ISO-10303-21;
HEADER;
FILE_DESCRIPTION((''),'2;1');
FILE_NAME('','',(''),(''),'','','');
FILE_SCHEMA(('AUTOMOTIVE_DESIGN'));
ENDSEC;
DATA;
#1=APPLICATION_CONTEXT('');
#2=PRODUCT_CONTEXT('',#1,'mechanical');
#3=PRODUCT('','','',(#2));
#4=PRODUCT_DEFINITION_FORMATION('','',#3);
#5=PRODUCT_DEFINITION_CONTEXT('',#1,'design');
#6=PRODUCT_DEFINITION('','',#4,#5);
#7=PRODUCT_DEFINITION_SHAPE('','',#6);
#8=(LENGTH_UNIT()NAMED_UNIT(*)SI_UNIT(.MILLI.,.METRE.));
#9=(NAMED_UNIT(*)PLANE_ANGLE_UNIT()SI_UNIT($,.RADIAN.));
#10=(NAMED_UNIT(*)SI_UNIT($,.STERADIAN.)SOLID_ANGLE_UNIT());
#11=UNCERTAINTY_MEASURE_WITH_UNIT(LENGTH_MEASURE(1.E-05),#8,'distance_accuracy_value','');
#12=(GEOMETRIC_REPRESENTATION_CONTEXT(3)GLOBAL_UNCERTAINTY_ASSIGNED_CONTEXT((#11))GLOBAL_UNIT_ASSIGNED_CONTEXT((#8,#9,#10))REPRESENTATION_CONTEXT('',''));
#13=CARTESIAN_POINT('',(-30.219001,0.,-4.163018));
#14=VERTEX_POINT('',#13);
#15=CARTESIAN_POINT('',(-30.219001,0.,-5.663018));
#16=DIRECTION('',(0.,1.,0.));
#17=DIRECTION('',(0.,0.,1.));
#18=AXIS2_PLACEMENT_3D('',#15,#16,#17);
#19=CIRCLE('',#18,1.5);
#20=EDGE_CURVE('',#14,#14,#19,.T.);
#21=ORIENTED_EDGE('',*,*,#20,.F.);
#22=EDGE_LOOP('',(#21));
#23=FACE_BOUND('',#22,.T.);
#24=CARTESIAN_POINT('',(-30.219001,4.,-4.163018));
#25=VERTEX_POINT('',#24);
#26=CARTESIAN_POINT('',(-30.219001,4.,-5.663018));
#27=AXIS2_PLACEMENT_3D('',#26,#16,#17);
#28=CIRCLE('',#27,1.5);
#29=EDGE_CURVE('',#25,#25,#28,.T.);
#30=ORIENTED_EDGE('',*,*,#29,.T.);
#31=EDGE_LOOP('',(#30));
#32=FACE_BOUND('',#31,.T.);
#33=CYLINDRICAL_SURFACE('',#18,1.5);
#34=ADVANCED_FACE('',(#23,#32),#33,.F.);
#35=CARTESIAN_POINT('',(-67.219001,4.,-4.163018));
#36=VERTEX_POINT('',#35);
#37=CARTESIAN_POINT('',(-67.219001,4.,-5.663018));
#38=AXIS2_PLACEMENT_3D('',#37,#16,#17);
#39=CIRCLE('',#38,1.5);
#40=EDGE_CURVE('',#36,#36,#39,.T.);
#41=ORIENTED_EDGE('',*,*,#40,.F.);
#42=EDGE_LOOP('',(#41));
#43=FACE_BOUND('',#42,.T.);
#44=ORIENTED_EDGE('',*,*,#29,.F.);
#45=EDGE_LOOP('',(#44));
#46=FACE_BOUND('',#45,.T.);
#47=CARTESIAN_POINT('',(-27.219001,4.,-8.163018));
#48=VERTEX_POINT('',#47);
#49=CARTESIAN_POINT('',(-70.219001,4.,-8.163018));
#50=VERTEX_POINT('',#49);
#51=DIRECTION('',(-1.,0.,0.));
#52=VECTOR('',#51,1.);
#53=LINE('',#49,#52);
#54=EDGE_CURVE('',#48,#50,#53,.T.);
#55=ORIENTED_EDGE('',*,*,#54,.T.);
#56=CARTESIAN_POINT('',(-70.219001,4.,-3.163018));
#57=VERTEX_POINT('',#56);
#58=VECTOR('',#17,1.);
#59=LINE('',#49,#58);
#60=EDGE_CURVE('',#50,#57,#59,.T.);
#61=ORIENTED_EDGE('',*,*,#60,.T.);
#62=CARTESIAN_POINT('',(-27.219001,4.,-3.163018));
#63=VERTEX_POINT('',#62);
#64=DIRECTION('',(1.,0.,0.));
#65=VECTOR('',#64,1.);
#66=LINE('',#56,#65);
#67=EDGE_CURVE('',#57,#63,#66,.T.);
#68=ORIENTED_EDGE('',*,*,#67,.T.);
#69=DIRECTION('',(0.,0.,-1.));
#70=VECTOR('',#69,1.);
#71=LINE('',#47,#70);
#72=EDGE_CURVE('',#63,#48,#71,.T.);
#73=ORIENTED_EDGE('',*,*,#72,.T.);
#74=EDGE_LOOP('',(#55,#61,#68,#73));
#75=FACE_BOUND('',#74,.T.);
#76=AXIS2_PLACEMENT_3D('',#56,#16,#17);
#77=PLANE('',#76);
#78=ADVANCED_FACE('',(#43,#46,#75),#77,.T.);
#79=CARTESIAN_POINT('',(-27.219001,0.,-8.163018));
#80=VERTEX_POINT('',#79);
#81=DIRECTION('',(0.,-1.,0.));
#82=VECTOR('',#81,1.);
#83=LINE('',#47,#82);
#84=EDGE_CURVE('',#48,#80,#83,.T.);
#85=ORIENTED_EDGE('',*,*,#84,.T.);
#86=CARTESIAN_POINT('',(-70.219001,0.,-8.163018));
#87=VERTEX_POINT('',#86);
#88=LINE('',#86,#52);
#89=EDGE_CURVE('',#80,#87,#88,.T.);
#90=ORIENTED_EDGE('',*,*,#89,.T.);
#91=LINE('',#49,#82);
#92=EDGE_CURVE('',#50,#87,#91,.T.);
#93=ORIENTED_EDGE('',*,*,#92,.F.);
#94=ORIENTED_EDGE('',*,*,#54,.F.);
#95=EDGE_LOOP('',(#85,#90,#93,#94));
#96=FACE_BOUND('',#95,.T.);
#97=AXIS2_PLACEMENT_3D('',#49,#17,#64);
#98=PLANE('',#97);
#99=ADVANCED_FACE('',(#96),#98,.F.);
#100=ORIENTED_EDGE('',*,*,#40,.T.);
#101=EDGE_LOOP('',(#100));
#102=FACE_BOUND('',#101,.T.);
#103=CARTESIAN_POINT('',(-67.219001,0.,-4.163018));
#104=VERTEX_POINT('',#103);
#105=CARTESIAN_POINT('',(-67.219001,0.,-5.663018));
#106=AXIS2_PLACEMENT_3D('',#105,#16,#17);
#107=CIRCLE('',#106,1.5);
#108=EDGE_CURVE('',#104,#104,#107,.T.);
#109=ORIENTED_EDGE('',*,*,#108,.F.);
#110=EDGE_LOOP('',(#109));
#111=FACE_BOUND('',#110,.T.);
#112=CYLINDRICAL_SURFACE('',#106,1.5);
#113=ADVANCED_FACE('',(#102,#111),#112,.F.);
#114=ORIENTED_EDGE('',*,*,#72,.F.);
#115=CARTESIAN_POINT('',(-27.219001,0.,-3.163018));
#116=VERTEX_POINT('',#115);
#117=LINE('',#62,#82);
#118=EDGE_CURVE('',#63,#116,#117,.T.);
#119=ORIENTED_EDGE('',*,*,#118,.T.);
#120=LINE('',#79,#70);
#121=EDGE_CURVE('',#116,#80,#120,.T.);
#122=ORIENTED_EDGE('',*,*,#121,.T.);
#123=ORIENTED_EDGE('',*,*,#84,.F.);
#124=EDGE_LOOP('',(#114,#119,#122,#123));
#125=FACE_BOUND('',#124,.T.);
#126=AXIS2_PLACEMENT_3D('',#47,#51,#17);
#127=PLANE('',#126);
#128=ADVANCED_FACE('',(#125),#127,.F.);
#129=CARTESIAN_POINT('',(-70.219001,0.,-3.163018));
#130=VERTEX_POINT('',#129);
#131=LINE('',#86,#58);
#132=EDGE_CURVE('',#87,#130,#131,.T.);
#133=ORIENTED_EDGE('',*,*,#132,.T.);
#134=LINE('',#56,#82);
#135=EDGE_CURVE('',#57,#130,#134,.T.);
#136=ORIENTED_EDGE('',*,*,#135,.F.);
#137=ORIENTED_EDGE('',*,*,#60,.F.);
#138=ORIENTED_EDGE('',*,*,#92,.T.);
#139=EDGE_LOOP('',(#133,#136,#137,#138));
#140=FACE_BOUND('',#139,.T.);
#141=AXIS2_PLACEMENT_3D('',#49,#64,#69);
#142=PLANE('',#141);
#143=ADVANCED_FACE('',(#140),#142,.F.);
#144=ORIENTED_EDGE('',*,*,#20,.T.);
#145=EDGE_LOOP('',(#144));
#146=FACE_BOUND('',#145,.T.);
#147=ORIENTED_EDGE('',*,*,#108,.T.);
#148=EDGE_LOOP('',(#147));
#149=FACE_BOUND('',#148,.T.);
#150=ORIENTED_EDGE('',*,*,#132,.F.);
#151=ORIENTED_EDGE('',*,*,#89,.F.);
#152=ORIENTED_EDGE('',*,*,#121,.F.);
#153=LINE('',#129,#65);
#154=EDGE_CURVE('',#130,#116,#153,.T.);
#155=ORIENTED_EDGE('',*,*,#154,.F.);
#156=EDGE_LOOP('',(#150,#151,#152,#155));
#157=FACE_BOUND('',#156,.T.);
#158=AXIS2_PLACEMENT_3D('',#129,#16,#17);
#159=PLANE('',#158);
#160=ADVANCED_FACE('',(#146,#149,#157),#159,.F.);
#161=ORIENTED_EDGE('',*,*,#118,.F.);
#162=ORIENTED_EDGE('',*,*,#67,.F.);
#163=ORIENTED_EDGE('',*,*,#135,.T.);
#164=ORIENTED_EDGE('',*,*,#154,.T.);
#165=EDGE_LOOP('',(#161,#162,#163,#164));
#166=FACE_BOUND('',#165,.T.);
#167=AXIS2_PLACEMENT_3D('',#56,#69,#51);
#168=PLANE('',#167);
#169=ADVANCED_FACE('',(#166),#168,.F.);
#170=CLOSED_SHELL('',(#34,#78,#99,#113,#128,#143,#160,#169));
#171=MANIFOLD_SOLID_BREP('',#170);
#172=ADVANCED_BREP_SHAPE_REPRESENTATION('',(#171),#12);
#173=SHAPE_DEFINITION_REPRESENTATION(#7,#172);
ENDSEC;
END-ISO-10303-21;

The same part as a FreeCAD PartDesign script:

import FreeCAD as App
import Part
import Sketcher
Q = App.Units.Quantity

doc = App.newDocument("Part")
params = doc.addObject("Spreadsheet::Sheet", "Params")
for row, (alias, value) in enumerate([
    ("sketch1_width", "43 mm"),
    ("sketch1_height", "5 mm"),
    ("pad1_length", "4 mm"),
    ("sketch2_diameter", "3 mm"),
    ("pocket1_length", "4 mm"),
], start=1):
    params.set(f"A{row}", alias)
    params.set(f"B{row}", "=" + value)
    params.setAlias(f"B{row}", alias)

body = doc.addObject("PartDesign::Body", "Body")

# Sketch on XZ plane
sketch1 = body.newObject("Sketcher::SketchObject", "Sketch")
sketch1.AttachmentSupport = (doc.getObject("XZ_Plane"), [""])
sketch1.MapMode = "FlatFace"
sketch1.addGeometry([
    Part.LineSegment(App.Vector(-70, -8, 0), App.Vector(-70, -3, 0)),
    Part.LineSegment(App.Vector(-70, -3, 0), App.Vector(-27, -3, 0)),
    Part.LineSegment(App.Vector(-27, -3, 0), App.Vector(-27, -8, 0)),
    Part.LineSegment(App.Vector(-27, -8, 0), App.Vector(-70, -8, 0)),
], False)
sketch1.addConstraint([
    Sketcher.Constraint("Coincident", 0, 2, 1, 1),
    Sketcher.Constraint("Coincident", 1, 2, 2, 1),
    Sketcher.Constraint("Coincident", 2, 2, 3, 1),
    Sketcher.Constraint("Coincident", 3, 2, 0, 1),
    Sketcher.Constraint("Vertical", 0),
    Sketcher.Constraint("Horizontal", 1),
    Sketcher.Constraint("Vertical", 2),
    Sketcher.Constraint("Horizontal", 3),
    Sketcher.Constraint("DistanceX", 1, 1, 1, 2, Q("43 mm")),
    Sketcher.Constraint("DistanceY", 0, 1, 0, 2, Q("5 mm")),
    Sketcher.Constraint("DistanceX", 0, 2, -1, 1, Q("70.219001 mm")),
    Sketcher.Constraint("DistanceY", 0, 2, -1, 1, Q("3.163018 mm")),
])
sketch1.setExpression("Constraints[8]", "Params.sketch1_width")
sketch1.setExpression("Constraints[9]", "Params.sketch1_height")
pad1 = body.newObject("PartDesign::Pad", "Pad")
pad1.Profile = sketch1
pad1.setExpression("Length", "Params.pad1_length")
pad1.Reversed = True

# Sketch on XZ plane
sketch2 = body.newObject("Sketcher::SketchObject", "Sketch001")
sketch2.AttachmentSupport = (doc.getObject("XZ_Plane"), [""])
sketch2.MapMode = "FlatFace"
sketch2.AttachmentOffset = App.Placement(App.Vector(0, 0, -4), App.Rotation())
sketch2.addGeometry([
    Part.Circle(App.Vector(-67.2, -5.7, 0), App.Vector(0, 0, 1), 1.5),
    Part.Circle(App.Vector(-30.2, -5.7, 0), App.Vector(0, 0, 1), 1.5),
], False)
sketch2.addConstraint([
    Sketcher.Constraint("Equal", 0, 1),
    Sketcher.Constraint("Horizontal", 0, 3, 1, 3),
    Sketcher.Constraint("Diameter", 0, Q("3 mm")),
    Sketcher.Constraint("DistanceX", 0, 3, 1, 3, Q("37 mm")),
    Sketcher.Constraint("DistanceX", 0, 3, -1, 1, Q("67.219001 mm")),
    Sketcher.Constraint("DistanceY", 0, 3, -1, 1, Q("5.663018 mm")),
])
sketch2.setExpression("Constraints[2]", "Params.sketch2_diameter")
pocket1 = body.newObject("PartDesign::Pocket", "Pocket")
pocket1.Profile = sketch2
pocket1.setExpression("Length", "Params.pocket1_length")
pocket1.Reversed = True

doc.recompute()
